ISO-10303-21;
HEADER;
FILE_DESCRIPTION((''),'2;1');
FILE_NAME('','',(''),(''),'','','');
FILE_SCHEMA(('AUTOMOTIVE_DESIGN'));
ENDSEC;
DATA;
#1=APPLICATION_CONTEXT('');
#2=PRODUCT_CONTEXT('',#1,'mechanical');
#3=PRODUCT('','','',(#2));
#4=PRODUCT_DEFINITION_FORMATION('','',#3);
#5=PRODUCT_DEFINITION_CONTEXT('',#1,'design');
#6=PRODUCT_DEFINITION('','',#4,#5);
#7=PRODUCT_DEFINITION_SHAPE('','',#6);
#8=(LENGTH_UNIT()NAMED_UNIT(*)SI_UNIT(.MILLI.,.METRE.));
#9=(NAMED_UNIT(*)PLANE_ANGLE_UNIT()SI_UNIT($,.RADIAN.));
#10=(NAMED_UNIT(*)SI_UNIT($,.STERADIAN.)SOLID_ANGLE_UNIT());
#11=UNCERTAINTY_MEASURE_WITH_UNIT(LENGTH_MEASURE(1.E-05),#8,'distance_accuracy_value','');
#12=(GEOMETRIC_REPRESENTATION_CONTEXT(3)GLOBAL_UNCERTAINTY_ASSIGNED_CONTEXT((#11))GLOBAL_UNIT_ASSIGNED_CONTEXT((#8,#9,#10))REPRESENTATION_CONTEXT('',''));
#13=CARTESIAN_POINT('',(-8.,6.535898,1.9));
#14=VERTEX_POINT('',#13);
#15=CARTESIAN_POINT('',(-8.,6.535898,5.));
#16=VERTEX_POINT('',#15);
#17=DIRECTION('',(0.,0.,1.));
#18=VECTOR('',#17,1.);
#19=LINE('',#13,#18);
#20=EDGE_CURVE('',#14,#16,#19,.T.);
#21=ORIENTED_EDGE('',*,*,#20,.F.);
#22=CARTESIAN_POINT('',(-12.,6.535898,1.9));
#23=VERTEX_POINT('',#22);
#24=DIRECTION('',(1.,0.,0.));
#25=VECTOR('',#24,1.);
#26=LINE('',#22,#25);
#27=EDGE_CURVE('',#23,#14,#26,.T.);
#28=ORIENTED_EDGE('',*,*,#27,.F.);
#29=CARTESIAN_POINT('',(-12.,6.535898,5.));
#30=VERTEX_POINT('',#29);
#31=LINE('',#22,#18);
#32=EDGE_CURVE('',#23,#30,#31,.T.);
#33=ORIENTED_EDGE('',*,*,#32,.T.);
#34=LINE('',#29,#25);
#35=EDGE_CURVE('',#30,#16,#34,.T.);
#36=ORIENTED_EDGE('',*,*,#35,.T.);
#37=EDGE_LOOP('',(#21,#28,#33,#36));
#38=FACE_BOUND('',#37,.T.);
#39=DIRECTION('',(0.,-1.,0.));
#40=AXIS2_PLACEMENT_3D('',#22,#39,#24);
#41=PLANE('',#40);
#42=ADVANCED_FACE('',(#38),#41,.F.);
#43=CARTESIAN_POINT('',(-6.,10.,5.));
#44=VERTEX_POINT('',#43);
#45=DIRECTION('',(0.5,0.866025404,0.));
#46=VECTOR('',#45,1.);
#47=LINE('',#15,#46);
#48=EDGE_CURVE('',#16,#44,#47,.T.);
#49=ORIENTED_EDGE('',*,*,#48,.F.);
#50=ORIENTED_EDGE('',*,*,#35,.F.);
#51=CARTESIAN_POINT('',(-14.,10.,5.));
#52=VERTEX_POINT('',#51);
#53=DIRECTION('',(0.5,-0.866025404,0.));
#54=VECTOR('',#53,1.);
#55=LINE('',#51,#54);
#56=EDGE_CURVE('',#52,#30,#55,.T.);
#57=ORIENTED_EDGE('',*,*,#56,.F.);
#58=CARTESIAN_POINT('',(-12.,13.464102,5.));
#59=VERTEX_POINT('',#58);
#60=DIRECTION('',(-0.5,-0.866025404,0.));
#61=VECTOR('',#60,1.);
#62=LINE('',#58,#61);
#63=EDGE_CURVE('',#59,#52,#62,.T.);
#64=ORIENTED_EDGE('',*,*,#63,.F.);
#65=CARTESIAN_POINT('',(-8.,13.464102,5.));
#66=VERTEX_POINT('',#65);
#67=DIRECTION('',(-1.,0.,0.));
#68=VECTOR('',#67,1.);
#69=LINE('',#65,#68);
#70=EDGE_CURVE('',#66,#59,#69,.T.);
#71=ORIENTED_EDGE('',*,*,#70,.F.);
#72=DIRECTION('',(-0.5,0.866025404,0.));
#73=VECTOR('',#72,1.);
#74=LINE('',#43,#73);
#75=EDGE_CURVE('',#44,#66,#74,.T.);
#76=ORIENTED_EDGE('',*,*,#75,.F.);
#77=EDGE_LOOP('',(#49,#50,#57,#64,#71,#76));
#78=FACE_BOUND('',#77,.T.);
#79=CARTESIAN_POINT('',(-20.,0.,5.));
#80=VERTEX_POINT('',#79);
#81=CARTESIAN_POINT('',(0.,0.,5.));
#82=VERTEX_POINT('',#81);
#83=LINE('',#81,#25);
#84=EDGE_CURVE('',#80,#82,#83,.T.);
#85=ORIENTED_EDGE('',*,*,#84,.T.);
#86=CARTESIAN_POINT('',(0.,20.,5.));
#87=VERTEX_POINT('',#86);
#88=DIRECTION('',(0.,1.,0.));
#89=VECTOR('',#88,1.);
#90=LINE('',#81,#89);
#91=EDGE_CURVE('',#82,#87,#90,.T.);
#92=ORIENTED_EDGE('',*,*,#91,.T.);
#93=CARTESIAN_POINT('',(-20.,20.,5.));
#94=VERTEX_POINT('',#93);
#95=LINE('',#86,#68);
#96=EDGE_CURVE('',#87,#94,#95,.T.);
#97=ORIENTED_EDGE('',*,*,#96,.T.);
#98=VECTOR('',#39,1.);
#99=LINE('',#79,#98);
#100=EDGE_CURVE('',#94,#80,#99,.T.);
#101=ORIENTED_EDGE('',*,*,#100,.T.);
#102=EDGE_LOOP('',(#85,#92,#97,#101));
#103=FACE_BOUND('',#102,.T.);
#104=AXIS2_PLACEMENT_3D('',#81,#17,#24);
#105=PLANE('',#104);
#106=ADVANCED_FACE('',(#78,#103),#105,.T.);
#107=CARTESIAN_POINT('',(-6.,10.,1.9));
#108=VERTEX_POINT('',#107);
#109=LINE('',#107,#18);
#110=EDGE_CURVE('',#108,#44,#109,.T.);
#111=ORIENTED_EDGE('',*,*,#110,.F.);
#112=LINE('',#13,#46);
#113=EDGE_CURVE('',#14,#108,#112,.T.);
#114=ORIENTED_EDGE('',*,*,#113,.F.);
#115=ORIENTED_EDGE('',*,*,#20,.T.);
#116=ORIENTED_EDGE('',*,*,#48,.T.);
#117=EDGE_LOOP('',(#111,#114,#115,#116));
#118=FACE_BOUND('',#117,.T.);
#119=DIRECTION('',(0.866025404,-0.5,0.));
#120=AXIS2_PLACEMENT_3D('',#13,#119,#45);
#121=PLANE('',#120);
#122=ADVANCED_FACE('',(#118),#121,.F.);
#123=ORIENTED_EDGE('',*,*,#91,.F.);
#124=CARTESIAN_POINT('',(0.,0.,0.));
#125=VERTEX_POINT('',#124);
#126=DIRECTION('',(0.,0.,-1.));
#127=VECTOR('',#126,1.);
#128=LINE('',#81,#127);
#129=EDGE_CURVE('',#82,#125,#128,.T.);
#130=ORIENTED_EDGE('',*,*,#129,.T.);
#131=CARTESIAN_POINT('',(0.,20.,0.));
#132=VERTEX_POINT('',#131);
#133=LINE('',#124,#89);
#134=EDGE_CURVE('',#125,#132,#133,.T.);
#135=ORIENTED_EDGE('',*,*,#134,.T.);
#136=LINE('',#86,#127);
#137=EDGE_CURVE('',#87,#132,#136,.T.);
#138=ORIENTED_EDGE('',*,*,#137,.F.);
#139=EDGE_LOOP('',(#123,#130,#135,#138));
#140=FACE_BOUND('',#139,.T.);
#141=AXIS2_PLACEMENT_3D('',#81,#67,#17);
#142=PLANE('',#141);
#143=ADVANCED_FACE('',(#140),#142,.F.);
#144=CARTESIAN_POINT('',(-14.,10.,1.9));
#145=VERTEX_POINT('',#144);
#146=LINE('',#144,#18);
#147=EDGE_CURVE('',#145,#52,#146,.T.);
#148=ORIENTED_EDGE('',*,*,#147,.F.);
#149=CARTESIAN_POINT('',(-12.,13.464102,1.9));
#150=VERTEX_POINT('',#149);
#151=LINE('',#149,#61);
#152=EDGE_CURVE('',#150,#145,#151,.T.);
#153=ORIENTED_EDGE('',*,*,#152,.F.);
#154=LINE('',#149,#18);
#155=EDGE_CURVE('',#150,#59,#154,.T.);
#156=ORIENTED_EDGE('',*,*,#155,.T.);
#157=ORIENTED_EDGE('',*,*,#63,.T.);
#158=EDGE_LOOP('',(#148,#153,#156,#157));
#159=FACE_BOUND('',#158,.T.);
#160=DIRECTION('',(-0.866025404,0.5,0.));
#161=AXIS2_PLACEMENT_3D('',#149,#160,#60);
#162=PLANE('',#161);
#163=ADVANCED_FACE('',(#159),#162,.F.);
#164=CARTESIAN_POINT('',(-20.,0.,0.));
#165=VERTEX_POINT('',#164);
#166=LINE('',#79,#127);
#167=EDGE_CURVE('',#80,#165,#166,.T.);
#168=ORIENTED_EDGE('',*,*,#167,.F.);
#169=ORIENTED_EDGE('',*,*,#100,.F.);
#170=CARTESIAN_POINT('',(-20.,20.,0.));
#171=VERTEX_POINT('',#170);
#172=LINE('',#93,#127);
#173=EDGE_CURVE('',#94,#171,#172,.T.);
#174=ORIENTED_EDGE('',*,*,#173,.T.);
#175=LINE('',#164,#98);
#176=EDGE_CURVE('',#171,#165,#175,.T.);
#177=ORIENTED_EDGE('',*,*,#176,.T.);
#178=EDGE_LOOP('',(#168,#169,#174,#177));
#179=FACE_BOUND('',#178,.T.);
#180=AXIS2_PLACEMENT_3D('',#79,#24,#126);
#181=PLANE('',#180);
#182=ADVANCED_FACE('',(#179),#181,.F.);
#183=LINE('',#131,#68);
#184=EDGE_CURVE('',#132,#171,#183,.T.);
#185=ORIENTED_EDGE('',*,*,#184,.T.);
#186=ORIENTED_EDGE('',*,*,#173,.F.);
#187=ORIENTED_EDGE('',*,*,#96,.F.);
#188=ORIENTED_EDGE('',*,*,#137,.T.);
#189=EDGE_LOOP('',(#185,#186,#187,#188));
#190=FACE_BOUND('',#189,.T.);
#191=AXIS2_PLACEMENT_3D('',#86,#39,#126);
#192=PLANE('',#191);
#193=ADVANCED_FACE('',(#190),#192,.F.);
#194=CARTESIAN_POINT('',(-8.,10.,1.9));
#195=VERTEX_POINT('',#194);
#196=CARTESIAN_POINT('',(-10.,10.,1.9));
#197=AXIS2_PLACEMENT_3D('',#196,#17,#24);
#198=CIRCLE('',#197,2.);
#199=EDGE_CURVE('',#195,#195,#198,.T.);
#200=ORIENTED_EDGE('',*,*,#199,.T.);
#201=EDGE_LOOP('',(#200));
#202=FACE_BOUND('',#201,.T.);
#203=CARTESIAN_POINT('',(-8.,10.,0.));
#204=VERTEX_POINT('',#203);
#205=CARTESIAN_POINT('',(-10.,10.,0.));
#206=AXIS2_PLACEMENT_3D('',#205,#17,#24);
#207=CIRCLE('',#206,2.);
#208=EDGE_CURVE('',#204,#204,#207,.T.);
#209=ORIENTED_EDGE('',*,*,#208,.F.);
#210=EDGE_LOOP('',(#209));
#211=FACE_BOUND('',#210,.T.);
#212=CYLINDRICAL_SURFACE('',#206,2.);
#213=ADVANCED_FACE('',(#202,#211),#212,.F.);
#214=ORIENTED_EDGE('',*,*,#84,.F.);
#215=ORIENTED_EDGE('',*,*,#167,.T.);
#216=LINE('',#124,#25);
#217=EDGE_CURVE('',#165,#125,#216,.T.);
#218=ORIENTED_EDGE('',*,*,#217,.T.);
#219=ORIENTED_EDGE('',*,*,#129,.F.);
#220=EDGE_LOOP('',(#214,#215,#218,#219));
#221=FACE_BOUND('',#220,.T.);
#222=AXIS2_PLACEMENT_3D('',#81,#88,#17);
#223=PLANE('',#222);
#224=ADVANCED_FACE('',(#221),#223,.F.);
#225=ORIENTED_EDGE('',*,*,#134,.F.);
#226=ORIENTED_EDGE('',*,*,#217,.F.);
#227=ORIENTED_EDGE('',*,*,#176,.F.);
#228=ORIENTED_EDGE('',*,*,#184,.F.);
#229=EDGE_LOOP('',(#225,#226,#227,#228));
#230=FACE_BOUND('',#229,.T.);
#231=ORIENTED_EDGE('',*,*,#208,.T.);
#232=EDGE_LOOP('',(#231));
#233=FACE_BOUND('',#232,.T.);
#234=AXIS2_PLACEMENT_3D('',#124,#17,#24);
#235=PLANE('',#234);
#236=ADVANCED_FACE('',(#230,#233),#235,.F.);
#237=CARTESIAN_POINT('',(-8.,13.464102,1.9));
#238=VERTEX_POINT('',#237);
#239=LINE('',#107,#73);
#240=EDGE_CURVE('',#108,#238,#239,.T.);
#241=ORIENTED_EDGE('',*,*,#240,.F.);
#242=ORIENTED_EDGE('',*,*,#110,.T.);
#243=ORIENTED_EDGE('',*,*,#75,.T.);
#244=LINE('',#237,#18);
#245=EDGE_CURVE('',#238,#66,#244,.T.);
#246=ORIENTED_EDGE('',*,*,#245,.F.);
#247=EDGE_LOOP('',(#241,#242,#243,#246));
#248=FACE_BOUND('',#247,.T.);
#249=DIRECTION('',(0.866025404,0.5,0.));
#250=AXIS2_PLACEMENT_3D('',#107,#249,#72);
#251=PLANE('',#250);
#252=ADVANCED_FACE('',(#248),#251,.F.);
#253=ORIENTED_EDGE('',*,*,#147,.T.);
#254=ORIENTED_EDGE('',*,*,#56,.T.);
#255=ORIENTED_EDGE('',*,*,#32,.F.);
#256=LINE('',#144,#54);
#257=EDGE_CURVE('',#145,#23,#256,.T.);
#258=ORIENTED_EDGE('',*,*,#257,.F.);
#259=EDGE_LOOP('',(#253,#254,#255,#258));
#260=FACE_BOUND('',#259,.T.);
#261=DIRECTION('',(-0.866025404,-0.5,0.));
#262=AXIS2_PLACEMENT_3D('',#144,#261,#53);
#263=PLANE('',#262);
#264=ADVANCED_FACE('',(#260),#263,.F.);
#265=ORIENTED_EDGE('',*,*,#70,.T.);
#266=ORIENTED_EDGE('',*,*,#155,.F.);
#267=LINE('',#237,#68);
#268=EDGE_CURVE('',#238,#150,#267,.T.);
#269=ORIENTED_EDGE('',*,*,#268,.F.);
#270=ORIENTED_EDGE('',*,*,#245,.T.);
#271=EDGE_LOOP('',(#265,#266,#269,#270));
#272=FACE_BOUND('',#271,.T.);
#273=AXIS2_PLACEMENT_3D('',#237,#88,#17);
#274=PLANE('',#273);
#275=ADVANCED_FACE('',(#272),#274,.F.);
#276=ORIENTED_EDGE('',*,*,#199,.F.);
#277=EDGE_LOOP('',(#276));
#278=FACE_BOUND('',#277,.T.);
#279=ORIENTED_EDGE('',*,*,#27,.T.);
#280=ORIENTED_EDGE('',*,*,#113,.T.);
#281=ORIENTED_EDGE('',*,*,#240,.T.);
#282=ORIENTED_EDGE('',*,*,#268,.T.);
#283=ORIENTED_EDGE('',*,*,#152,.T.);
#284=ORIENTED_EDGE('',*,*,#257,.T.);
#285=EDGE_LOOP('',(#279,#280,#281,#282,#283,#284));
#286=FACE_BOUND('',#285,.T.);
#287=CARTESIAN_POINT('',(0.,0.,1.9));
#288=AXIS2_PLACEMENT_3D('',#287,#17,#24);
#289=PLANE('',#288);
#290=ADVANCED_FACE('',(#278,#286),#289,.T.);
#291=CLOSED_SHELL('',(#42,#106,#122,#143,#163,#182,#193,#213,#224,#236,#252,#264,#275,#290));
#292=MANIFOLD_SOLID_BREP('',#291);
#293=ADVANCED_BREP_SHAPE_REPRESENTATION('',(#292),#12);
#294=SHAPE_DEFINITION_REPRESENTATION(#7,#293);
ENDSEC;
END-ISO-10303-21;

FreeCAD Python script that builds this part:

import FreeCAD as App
import Part
import Sketcher
Q = App.Units.Quantity

doc = App.newDocument("Part")
body = doc.addObject("PartDesign::Body", "Body")

# Sketch on XY plane
sketch1 = body.newObject("Sketcher::SketchObject", "Sketch")
sketch1.AttachmentSupport = (doc.getObject("XY_Plane"), [""])
sketch1.MapMode = "FlatFace"
sketch1.addGeometry(Part.LineSegment(App.Vector(-20, 20, 0), App.Vector(-20, 0, 0)), False)
sketch1.addGeometry(Part.LineSegment(App.Vector(-20, 0, 0), App.Vector(0, 0, 0)), False)
sketch1.addGeometry(Part.LineSegment(App.Vector(0, 0, 0), App.Vector(0, 20, 0)), False)
sketch1.addGeometry(Part.LineSegment(App.Vector(0, 20, 0), App.Vector(-20, 20, 0)), False)
sketch1.addConstraint(Sketcher.Constraint("Coincident", 0, 2, 1, 1))
sketch1.addConstraint(Sketcher.Constraint("Coincident", 1, 2, 2, 1))
sketch1.addConstraint(Sketcher.Constraint("Coincident", 2, 2, 3, 1))
sketch1.addConstraint(Sketcher.Constraint("Coincident", 3, 2, 0, 1))
sketch1.addConstraint(Sketcher.Constraint("Vertical", 0))
sketch1.addConstraint(Sketcher.Constraint("Horizontal", 1))
sketch1.addConstraint(Sketcher.Constraint("Vertical", 2))
sketch1.addConstraint(Sketcher.Constraint("Horizontal", 3))
sketch1.addConstraint(Sketcher.Constraint("Coincident", 1, 2, -1, 1))
sketch1.addConstraint(Sketcher.Constraint("Equal", 3, 0))
sketch1.addConstraint(Sketcher.Constraint("DistanceX", 1, 1, 1, 2, 20.0))
pad1 = body.newObject("PartDesign::Pad", "Pad")
pad1.Profile = sketch1
pad1.Length = 5

# Sketch on XY plane
sketch2 = body.newObject("Sketcher::SketchObject", "Sketch001")
sketch2.AttachmentSupport = (doc.getObject("XY_Plane"), [""])
sketch2.MapMode = "FlatFace"
sketch2.AttachmentOffset = App.Placement(App.Vector(0, 0, 5), App.Rotation())
sketch2.addGeometry(Part.LineSegment(App.Vector(-6, 10, 0), App.Vector(-8, 13.5, 0)), False)
sketch2.addGeometry(Part.LineSegment(App.Vector(-8, 13.5, 0), App.Vector(-12, 13.5, 0)), False)
sketch2.addGeometry(Part.LineSegment(App.Vector(-12, 13.5, 0), App.Vector(-14, 10, 0)), False)
sketch2.addGeometry(Part.LineSegment(App.Vector(-14, 10, 0), App.Vector(-12, 6.5, 0)), False)
sketch2.addGeometry(Part.LineSegment(App.Vector(-12, 6.5, 0), App.Vector(-8, 6.5, 0)), False)
sketch2.addGeometry(Part.LineSegment(App.Vector(-8, 6.5, 0), App.Vector(-6, 10, 0)), False)
sketch2.addConstraint(Sketcher.Constraint("Coincident", 0, 2, 1, 1))
sketch2.addConstraint(Sketcher.Constraint("Coincident", 1, 2, 2, 1))
sketch2.addConstraint(Sketcher.Constraint("Coincident", 2, 2, 3, 1))
sketch2.addConstraint(Sketcher.Constraint("Coincident", 3, 2, 4, 1))
sketch2.addConstraint(Sketcher.Constraint("Coincident", 4, 2, 5, 1))
sketch2.addConstraint(Sketcher.Constraint("Coincident", 5, 2, 0, 1))
sketch2.addConstraint(Sketcher.Constraint("Horizontal", 1))
sketch2.addConstraint(Sketcher.Constraint("Horizontal", 4))
sketch2.addConstraint(Sketcher.Constraint("Parallel", 0, 3))
sketch2.addConstraint(Sketcher.Constraint("Parallel", 2, 5))
sketch2.addConstraint(Sketcher.Constraint("Horizontal", 2, 2, 5, 2))
sketch2.addConstraint(Sketcher.Constraint("Vertical", 1, 2, 3, 2))
sketch2.addConstraint(Sketcher.Constraint("Vertical", 0, 2, 4, 2))
sketch2.addConstraint(Sketcher.Constraint("DistanceX", 1, 2, 1, 1, 4.0))
sketch2.addConstraint(Sketcher.Constraint("Angle", 0, Q("120 deg")))
sketch2.addConstraint(Sketcher.Constraint("Distance", 0, 4.0))
sketch2.addConstraint(Sketcher.Constraint("DistanceX", 0, 2, -1, 1, 8.0))
sketch2.addConstraint(Sketcher.Constraint("DistanceY", -1, 1, 2, 2, 10.0))
pocket1 = body.newObject("PartDesign::Pocket", "Pocket")
pocket1.Profile = sketch2
pocket1.Length = 3.1

# Sketch on XY plane
sketch3 = body.newObject("Sketcher::SketchObject", "Sketch002")
sketch3.AttachmentSupport = (doc.getObject("XY_Plane"), [""])
sketch3.MapMode = "FlatFace"
sketch3.AttachmentOffset = App.Placement(App.Vector(0, 0, 5), App.Rotation())
sketch3.addGeometry(Part.Circle(App.Vector(-10, 10, 0), App.Vector(0, 0, 1), 2), False)
sketch3.addConstraint(Sketcher.Constraint("Diameter", 0, 4.0))
sketch3.addConstraint(Sketcher.Constraint("DistanceX", 0, 3, -1, 1, 10.0))
sketch3.addConstraint(Sketcher.Constraint("DistanceY", -1, 1, 0, 3, 10.0))
pocket2 = body.newObject("PartDesign::Pocket", "Pocket001")
pocket2.Profile = sketch3
pocket2.Type = "ThroughAll"

doc.recompute()
